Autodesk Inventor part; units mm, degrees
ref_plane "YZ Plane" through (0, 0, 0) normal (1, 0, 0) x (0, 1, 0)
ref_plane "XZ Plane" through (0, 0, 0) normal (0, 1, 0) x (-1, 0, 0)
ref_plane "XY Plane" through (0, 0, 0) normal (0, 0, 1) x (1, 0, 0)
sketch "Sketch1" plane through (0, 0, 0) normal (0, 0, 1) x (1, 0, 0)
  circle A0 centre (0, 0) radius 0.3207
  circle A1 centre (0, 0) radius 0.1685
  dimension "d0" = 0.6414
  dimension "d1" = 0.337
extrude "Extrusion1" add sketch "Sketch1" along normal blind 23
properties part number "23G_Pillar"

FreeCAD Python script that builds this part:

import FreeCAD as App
import Part
import Sketcher

V = App.Vector

doc = App.newDocument("Part")
body = doc.addObject("PartDesign::Body", "Body")

sketch1 = doc.addObject("Sketcher::SketchObject", "Sketch")
body.addObject(sketch1)
sketch1.AttachmentSupport = (doc.XY_Plane, [""])
sketch1.MapMode = "FlatFace"
sketch1.addGeometry([
    Part.Circle(V(0, 0, 0), V(0, 0, 1), 0.32),
    Part.Circle(V(0, 0, 0), V(0, 0, 1), 0.17),
], False)
sketch1.addConstraint([
    Sketcher.Constraint("Coincident", 0, 3, -1, 1),
    Sketcher.Constraint("Coincident", 1, 3, -1, 1),
    Sketcher.Constraint("Diameter", 1, 0.337),
    Sketcher.Constraint("Diameter", 0, 0.6414),
])
pad1 = doc.addObject("PartDesign::Pad", "Pad")
body.addObject(pad1)
pad1.Profile = sketch1
pad1.Length = 23

doc.recompute()
